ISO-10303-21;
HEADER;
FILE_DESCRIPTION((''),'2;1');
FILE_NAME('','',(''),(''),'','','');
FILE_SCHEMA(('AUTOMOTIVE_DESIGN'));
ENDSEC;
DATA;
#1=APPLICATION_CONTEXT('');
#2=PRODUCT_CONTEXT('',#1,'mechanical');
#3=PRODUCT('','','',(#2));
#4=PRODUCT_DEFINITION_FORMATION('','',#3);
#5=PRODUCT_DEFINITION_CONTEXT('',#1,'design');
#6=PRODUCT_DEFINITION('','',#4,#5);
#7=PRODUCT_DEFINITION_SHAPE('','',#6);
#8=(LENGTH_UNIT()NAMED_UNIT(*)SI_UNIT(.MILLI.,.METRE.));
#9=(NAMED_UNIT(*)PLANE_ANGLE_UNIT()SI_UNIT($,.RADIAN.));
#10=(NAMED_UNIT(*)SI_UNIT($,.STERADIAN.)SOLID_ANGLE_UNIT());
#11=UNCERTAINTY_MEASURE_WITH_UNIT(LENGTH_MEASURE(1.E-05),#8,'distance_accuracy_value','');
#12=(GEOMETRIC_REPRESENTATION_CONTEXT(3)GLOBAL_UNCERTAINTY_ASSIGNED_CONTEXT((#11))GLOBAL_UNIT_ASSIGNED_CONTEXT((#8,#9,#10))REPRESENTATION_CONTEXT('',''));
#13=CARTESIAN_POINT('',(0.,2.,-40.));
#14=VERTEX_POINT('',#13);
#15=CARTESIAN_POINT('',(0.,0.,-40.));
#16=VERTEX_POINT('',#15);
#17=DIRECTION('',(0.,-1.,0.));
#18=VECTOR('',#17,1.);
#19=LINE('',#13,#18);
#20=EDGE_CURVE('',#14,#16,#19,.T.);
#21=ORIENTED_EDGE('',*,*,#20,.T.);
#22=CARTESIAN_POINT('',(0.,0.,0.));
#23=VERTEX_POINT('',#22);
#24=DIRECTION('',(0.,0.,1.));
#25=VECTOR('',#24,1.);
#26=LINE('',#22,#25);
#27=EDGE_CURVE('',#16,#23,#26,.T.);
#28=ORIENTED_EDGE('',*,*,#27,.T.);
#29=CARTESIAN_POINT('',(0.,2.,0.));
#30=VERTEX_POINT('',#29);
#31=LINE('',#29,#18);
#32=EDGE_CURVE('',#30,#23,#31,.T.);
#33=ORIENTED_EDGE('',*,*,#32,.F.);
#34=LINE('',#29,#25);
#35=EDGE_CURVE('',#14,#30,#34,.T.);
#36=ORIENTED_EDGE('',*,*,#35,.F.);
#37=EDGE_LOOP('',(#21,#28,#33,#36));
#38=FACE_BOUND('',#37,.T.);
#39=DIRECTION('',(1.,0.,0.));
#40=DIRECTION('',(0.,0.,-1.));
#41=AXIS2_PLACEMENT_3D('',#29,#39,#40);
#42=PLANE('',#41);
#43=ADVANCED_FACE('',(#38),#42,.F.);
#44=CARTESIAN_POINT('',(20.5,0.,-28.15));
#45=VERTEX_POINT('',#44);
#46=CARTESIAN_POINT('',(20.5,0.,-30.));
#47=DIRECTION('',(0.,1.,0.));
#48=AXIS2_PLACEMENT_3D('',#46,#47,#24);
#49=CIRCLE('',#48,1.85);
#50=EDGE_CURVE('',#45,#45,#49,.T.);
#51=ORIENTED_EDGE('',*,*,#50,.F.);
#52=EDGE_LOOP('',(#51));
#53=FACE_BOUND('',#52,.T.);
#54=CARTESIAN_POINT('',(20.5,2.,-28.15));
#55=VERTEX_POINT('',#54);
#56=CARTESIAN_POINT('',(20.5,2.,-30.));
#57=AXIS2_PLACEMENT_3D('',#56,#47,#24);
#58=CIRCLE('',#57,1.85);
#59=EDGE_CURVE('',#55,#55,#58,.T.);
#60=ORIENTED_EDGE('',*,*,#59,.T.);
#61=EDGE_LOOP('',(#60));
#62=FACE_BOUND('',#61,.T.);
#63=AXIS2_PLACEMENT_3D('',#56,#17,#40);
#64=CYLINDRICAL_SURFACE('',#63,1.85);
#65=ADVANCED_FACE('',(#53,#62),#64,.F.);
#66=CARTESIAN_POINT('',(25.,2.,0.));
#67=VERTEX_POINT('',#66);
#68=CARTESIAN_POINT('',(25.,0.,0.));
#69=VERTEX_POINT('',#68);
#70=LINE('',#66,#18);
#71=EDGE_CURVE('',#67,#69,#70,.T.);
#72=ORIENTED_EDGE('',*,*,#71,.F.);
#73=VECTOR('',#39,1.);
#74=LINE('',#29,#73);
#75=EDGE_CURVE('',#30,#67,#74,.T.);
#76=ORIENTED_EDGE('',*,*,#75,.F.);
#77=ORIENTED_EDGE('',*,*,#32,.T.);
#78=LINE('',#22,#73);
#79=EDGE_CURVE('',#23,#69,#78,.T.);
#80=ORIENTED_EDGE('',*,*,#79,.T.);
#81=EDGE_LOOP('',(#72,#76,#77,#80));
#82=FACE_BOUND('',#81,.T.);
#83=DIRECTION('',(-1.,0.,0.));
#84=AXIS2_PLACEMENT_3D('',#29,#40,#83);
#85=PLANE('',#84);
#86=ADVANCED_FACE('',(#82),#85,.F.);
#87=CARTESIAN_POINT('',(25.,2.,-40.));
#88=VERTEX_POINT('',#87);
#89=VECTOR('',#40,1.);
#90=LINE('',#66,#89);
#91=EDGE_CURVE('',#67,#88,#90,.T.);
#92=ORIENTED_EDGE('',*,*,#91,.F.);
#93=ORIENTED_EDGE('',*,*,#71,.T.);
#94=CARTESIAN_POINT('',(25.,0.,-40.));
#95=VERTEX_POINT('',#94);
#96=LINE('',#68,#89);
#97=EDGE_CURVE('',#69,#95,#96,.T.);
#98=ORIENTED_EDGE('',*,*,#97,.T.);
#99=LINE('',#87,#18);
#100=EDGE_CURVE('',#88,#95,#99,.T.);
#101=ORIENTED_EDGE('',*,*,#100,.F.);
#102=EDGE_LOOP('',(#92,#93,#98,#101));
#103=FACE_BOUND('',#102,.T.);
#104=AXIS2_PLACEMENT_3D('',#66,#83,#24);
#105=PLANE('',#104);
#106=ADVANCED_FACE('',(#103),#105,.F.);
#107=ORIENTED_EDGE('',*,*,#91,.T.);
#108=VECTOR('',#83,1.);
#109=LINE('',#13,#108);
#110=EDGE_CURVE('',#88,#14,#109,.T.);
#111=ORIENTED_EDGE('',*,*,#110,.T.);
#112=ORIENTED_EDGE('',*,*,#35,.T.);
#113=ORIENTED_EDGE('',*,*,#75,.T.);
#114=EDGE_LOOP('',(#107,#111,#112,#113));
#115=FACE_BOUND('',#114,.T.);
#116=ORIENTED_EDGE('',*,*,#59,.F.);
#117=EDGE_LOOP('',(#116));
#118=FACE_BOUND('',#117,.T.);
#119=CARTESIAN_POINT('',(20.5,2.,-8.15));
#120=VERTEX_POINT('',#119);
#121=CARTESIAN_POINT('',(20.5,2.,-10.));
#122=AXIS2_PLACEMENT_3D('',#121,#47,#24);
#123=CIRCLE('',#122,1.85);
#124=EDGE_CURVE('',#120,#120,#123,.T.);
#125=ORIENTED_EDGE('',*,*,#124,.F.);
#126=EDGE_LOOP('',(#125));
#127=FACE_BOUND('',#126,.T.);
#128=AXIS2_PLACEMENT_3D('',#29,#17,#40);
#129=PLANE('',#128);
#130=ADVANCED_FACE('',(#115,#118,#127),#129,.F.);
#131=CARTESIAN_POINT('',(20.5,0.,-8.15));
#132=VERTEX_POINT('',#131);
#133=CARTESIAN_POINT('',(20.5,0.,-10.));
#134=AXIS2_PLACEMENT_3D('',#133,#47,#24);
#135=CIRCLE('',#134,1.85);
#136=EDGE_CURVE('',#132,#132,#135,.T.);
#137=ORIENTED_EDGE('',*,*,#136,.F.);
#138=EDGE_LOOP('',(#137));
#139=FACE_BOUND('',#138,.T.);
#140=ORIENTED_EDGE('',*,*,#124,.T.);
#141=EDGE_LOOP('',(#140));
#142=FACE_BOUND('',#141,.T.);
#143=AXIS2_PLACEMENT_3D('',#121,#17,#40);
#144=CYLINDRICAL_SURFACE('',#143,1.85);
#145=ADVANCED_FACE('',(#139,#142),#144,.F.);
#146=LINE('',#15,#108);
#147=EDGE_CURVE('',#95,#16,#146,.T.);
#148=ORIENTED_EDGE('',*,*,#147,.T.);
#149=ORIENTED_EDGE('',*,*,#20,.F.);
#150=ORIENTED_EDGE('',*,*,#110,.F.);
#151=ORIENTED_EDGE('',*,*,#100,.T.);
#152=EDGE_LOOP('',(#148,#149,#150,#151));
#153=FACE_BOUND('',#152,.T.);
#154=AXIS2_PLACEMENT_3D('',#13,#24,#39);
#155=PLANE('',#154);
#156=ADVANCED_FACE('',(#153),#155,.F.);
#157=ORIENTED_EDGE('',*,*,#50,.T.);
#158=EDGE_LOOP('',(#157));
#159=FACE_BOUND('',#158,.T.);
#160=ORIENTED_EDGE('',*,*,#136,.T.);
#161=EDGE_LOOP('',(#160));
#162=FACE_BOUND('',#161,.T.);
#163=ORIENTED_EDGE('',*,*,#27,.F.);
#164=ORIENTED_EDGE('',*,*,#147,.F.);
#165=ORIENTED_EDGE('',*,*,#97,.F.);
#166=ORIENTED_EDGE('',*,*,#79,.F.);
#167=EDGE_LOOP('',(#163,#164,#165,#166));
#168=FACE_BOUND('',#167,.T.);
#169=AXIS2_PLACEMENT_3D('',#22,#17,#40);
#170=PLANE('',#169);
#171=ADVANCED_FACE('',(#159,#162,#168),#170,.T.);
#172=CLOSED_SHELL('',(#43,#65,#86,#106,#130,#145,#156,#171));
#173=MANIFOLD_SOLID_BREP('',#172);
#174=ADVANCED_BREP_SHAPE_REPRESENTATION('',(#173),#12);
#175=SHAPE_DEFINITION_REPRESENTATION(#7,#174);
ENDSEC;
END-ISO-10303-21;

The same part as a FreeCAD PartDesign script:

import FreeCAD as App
import Part
import Sketcher

V = App.Vector


def add_polygon(sketch, points):
    """Adds a closed chain of lines whose ends are joined by coincident constraints."""
    first, n = sketch.GeometryCount, len(points)
    for a, b in zip(points, points[1:] + points[:1]):
        sketch.addGeometry(Part.LineSegment(App.Vector(*a, 0), App.Vector(*b, 0)), False)
    for i in range(n):
        sketch.addConstraint(Sketcher.Constraint("Coincident", first + i, 2, first + (i + 1) % n, 1))

doc = App.newDocument("Part")
body = doc.addObject("PartDesign::Body", "Body")

# Sketch on XZ plane
sketch1 = body.newObject("Sketcher::SketchObject", "Sketch")
sketch1.AttachmentSupport = (doc.getObject("XZ_Plane"), [""])
sketch1.MapMode = "FlatFace"
add_polygon(sketch1, [(0, -40), (0, 0), (25, 0), (25, -40)])  # lines 0-3
sketch1.addGeometry(Part.Circle(V(20.5, -10, 0), V(0, 0, 1), 1.9), False)  # 4
sketch1.addGeometry(Part.Circle(V(20.5, -30, 0), V(0, 0, 1), 1.9), False)  # 5
sketch1.addConstraint(Sketcher.Constraint("Vertical", 0))
sketch1.addConstraint(Sketcher.Constraint("Horizontal", 1))
sketch1.addConstraint(Sketcher.Constraint("Vertical", 2))
sketch1.addConstraint(Sketcher.Constraint("Horizontal", 3))
sketch1.addConstraint(Sketcher.Constraint("Coincident", 0, 2, -1, 1))
sketch1.addConstraint(Sketcher.Constraint("Equal", 4, 5))
sketch1.addConstraint(Sketcher.Constraint("Vertical", 4, 3, 5, 3))
sketch1.addConstraint(Sketcher.Constraint("Diameter", 4, 3.7))
sketch1.addConstraint(Sketcher.Constraint("DistanceX", 1, 1, 1, 2, 25.0))
sketch1.addConstraint(Sketcher.Constraint("DistanceY", 0, 1, 0, 2, 40.0))
sketch1.addConstraint(Sketcher.Constraint("DistanceY", 4, 3, -1, 1, 10.0))
sketch1.addConstraint(Sketcher.Constraint("DistanceY", 5, 3, -1, 1, 30.0))
sketch1.addConstraint(Sketcher.Constraint("DistanceX", -1, 1, 4, 3, 20.5))
pad1 = body.newObject("PartDesign::Pad", "Pad")
pad1.Profile = sketch1
pad1.Length = 2
pad1.Reversed = True

doc.recompute()
